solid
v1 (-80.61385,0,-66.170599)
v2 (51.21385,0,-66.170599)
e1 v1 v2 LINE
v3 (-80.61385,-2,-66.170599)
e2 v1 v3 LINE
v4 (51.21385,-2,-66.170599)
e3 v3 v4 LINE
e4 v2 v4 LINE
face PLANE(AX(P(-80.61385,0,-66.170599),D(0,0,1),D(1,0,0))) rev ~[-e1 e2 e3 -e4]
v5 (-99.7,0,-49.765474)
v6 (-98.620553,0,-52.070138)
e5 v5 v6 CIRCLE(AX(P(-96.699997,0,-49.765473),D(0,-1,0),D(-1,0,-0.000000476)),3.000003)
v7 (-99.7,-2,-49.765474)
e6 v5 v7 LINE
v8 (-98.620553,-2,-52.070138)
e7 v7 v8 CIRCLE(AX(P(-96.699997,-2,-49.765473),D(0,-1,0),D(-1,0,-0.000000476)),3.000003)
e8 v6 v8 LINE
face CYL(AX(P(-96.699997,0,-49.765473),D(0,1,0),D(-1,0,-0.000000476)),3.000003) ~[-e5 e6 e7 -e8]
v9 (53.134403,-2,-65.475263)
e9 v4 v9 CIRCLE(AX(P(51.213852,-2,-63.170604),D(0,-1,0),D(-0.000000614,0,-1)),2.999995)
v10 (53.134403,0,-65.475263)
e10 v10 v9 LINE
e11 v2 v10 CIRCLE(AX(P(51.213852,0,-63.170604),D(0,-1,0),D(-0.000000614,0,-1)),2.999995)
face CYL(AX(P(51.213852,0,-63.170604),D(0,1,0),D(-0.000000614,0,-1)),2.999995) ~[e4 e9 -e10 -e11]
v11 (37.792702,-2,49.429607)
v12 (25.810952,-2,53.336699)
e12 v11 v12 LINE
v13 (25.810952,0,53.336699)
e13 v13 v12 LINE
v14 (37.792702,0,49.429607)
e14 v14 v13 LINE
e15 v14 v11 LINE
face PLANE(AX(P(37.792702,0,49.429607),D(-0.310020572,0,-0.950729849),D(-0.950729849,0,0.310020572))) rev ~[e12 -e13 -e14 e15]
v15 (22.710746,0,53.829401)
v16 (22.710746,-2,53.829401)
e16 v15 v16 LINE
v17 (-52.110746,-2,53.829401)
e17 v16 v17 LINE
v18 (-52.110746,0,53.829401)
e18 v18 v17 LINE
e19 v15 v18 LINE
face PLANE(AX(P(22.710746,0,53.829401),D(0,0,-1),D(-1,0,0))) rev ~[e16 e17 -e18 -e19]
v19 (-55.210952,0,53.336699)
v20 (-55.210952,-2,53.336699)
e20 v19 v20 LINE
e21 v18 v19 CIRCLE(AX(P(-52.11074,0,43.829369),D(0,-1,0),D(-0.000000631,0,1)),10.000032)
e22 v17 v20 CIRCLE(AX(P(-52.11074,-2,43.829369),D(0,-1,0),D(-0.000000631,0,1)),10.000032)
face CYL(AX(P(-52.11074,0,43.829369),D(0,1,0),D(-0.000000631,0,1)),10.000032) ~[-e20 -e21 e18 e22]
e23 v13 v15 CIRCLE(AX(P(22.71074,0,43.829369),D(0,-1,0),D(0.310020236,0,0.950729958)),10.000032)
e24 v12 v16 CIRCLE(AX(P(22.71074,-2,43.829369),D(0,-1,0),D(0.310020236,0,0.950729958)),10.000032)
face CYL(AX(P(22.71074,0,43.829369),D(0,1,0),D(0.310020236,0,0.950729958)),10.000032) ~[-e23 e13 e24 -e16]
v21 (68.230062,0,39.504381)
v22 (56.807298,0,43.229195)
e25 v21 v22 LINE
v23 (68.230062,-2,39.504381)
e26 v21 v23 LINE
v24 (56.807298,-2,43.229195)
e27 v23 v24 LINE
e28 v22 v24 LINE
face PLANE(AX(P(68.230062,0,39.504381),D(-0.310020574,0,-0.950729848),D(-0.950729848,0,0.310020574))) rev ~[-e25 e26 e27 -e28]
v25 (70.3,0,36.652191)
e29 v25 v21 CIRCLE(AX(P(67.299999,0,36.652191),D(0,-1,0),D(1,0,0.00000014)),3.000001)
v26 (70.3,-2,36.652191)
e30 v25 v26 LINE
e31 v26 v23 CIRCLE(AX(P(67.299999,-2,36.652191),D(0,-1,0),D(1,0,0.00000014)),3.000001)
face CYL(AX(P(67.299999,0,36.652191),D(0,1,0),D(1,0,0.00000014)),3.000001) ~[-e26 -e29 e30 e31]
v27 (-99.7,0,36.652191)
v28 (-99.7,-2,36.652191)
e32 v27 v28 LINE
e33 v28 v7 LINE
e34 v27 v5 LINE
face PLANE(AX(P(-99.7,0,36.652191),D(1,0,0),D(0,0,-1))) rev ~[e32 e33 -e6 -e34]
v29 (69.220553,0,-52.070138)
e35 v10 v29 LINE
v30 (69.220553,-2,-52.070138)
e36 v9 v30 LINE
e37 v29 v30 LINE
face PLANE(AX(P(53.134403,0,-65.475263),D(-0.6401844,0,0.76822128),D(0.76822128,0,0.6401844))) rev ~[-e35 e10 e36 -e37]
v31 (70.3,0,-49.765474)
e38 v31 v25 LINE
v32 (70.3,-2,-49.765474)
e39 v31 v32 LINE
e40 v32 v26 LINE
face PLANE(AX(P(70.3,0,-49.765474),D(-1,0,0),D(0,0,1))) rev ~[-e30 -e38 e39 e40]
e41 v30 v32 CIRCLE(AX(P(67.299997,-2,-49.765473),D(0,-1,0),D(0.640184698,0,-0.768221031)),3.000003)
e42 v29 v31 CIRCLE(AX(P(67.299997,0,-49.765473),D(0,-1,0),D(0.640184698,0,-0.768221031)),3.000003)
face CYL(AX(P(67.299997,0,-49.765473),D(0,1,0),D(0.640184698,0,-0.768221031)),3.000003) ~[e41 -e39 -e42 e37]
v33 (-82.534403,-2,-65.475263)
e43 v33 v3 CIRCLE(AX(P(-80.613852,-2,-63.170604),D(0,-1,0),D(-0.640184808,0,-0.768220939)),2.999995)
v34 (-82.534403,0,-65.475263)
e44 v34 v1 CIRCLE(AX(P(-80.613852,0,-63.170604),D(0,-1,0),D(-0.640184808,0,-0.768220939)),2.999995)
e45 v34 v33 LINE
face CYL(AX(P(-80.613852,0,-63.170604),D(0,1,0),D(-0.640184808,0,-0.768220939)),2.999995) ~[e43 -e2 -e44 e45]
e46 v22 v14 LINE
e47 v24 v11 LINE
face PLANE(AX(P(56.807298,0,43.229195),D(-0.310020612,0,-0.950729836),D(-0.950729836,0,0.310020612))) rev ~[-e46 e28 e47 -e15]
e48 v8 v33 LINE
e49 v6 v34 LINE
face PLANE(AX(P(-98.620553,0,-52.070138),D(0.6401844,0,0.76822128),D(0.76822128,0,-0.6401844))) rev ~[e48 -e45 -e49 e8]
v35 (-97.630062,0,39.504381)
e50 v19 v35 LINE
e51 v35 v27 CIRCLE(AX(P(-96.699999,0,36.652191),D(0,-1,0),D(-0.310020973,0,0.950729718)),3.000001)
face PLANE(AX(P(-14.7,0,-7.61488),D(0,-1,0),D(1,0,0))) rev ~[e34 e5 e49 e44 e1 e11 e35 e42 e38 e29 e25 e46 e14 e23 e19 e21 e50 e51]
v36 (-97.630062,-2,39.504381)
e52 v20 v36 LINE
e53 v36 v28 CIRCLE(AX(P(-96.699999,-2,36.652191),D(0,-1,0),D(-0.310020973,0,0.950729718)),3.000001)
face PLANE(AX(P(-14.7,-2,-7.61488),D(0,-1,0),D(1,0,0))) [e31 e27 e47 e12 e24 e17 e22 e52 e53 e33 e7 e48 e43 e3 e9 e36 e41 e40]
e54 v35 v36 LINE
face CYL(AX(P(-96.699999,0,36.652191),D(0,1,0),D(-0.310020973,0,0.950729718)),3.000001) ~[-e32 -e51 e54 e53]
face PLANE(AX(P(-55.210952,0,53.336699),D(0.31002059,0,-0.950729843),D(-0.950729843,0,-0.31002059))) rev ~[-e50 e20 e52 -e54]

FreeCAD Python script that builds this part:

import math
import FreeCAD as App
import Part
import Sketcher

doc = App.newDocument("Part")
body = doc.addObject("PartDesign::Body", "Body")

# Sketch on XZ plane
sketch1 = body.newObject("Sketcher::SketchObject", "Sketch")
sketch1.AttachmentSupport = (doc.getObject("XZ_Plane"), [""])
sketch1.MapMode = "FlatFace"
sketch1.addGeometry([
    Part.ArcOfCircle(Part.Circle(App.Vector(67.299997, -49.765473, 0), App.Vector(0, 0, 1), 3.000003), math.radians(-50.194407), math.radians(-0.000027)),  # 0
    Part.LineSegment(App.Vector(70.3, -49.765474, 0), App.Vector(70.3, 36.652191, 0)),  # 1
    Part.ArcOfCircle(Part.Circle(App.Vector(67.299999, 36.652191, 0), App.Vector(0, 0, 1), 3.000001), math.radians(0.000008), math.radians(71.939506)),  # 2
    Part.LineSegment(App.Vector(68.230062, 39.504381, 0), App.Vector(56.807298, 43.229195, 0)),  # 3
    Part.LineSegment(App.Vector(56.807298, 43.229195, 0), App.Vector(37.792702, 49.429607, 0)),  # 4
    Part.LineSegment(App.Vector(37.792702, 49.429607, 0), App.Vector(25.810952, 53.336699, 0)),  # 5
    Part.ArcOfCircle(Part.Circle(App.Vector(22.71074, 43.829369, 0), App.Vector(0, 0, 1), 10.000032), math.radians(71.93955), math.radians(89.999964)),  # 6
    Part.LineSegment(App.Vector(22.710746, 53.829401, 0), App.Vector(-52.110746, 53.829401, 0)),  # 7
    Part.ArcOfCircle(Part.Circle(App.Vector(-52.11074, 43.829369, 0), App.Vector(0, 0, 1), 10.000032), math.radians(90.000036), math.radians(108.06045)),  # 8
    Part.LineSegment(App.Vector(-55.210952, 53.336699, 0), App.Vector(-97.630062, 39.504381, 0)),  # 9
    Part.ArcOfCircle(Part.Circle(App.Vector(-96.699999, 36.652191, 0), App.Vector(0, 0, 1), 3.000001), math.radians(108.060494), math.radians(179.999992)),  # 10
    Part.LineSegment(App.Vector(-99.7, 36.652191, 0), App.Vector(-99.7, -49.765474, 0)),  # 11
    Part.ArcOfCircle(Part.Circle(App.Vector(-96.699997, -49.765473, 0), App.Vector(0, 0, 1), 3.000003), math.radians(-179.999973), math.radians(-129.805593)),  # 12
    Part.LineSegment(App.Vector(-98.620553, -52.070138, 0), App.Vector(-82.534403, -65.475263, 0)),  # 13
    Part.ArcOfCircle(Part.Circle(App.Vector(-80.613852, -63.170604, 0), App.Vector(0, 0, 1), 2.999995), math.radians(-129.805602), math.radians(-89.999965)),  # 14
    Part.LineSegment(App.Vector(-80.61385, -66.170599, 0), App.Vector(51.21385, -66.170599, 0)),  # 15
    Part.ArcOfCircle(Part.Circle(App.Vector(51.213852, -63.170604, 0), App.Vector(0, 0, 1), 2.999995), math.radians(-90.000035), math.radians(-50.194398)),  # 16
    Part.LineSegment(App.Vector(53.134403, -65.475263, 0), App.Vector(69.220553, -52.070138, 0)),  # 17
], False)
sketch1.addConstraint([
    Sketcher.Constraint("Coincident", 0, 2, 1, 1),
    Sketcher.Constraint("Coincident", 1, 2, 2, 1),
    Sketcher.Constraint("Coincident", 2, 2, 3, 1),
    Sketcher.Constraint("Coincident", 3, 2, 4, 1),
    Sketcher.Constraint("Coincident", 4, 2, 5, 1),
    Sketcher.Constraint("Coincident", 5, 2, 6, 1),
    Sketcher.Constraint("Coincident", 6, 2, 7, 1),
    Sketcher.Constraint("Coincident", 7, 2, 8, 1),
    Sketcher.Constraint("Coincident", 8, 2, 9, 1),
    Sketcher.Constraint("Coincident", 9, 2, 10, 1),
    Sketcher.Constraint("Coincident", 10, 2, 11, 1),
    Sketcher.Constraint("Coincident", 11, 2, 12, 1),
    Sketcher.Constraint("Coincident", 12, 2, 13, 1),
    Sketcher.Constraint("Coincident", 13, 2, 14, 1),
    Sketcher.Constraint("Coincident", 14, 2, 15, 1),
    Sketcher.Constraint("Coincident", 15, 2, 16, 1),
    Sketcher.Constraint("Coincident", 16, 2, 17, 1),
    Sketcher.Constraint("Coincident", 17, 2, 0, 1),
    Sketcher.Constraint("Vertical", 1),
    Sketcher.Constraint("Horizontal", 7),
    Sketcher.Constraint("Vertical", 11),
    Sketcher.Constraint("Horizontal", 15),
    Sketcher.Constraint("Radius", 2, 3.000001),
    Sketcher.Constraint("Radius", 10, 3.000001),
    Sketcher.Constraint("Distance", 4, 19.999999),
    Sketcher.Constraint("DistanceX", -1, 1, 2, 3, 67.299999),
    Sketcher.Constraint("DistanceX", 10, 3, -1, 1, 96.699999),
    Sketcher.Constraint("DistanceX", 15, 1, 15, 2, 131.8277),
    Sketcher.Constraint("Radius", 0, 3.000003),
    Sketcher.Constraint("Radius", 6, 10.000032),
    Sketcher.Constraint("Radius", 8, 10.000032),
    Sketcher.Constraint("Radius", 12, 3.000003),
    Sketcher.Constraint("Radius", 14, 2.999995),
    Sketcher.Constraint("Radius", 16, 2.999995),
    Sketcher.Constraint("DistanceX", -1, 1, 3, 2, 56.807298),
    Sketcher.Constraint("DistanceX", -1, 1, 4, 2, 37.792702),
    Sketcher.Constraint("DistanceY", -1, 1, 5, 2, 53.336699),
    Sketcher.Constraint("DistanceY", -1, 1, 6, 2, 53.829401),
    Sketcher.Constraint("DistanceY", -1, 1, 8, 2, 53.336699),
    Sketcher.Constraint("DistanceY", 14, 2, -1, 1, 66.170599),
    Sketcher.Constraint("DistanceX", 12, 2, 14, 3, 18.006701),
    Sketcher.Constraint("DistanceX", 16, 3, 17, 2, 18.006701),
    Sketcher.Constraint("Distance", 3, 12.014732),
    Sketcher.Constraint("DistanceX", 7, 2, 7, 1, 74.821492),
    Sketcher.Constraint("DistanceY", 1, 1, 1, 2, 86.417665),
    Sketcher.Constraint("DistanceY", 11, 2, 11, 1, 86.417665),
    Sketcher.Constraint("DistanceY", -1, 1, 2, 3, 36.652191),
    Sketcher.Constraint("DistanceX", -1, 1, 6, 3, 22.71074),
    Sketcher.Constraint("DistanceX", 8, 3, -1, 1, 52.11074),
    Sketcher.Constraint("DistanceY", -1, 1, 10, 3, 36.652191),
    Sketcher.Constraint("DistanceX", 14, 3, -1, 1, 80.613852),
    Sketcher.Constraint("DistanceX", -1, 1, 16, 3, 51.213852),
    Sketcher.Constraint("DistanceY", -1, 1, 1, 2, 36.652191),
    Sketcher.Constraint("DistanceY", -1, 1, 2, 2, 39.504381),
    Sketcher.Constraint("DistanceX", 9, 2, -1, 1, 97.630062),
    Sketcher.Constraint("DistanceY", -1, 1, 10, 2, 36.652191),
    Sketcher.Constraint("DistanceY", 12, 2, -1, 1, 52.070138),
    Sketcher.Constraint("DistanceX", 14, 2, -1, 1, 80.61385),
    Sketcher.Constraint("DistanceY", 0, 3, 6, 3, 93.594841),
    Sketcher.Constraint("DistanceX", 13, 2, 14, 3, 1.920551),
    Sketcher.Constraint("DistanceX", 16, 3, 16, 2, 1.920551),
    Sketcher.Constraint("DistanceX", -1, 1, 6, 2, 22.710746),
])
pad1 = body.newObject("PartDesign::Pad", "Pad")
pad1.Profile = sketch1
pad1.Length = 2

doc.recompute()
